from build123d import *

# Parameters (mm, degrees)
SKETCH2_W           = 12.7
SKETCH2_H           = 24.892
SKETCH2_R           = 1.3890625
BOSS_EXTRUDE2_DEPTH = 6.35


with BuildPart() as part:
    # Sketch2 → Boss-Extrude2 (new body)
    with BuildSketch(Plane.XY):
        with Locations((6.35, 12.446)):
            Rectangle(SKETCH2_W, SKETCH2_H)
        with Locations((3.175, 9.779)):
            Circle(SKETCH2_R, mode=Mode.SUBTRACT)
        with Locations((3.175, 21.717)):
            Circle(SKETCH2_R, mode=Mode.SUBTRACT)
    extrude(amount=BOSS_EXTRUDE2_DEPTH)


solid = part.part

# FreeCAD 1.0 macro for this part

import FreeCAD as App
import Part
import Sketcher
from FreeCAD import Vector
Q = App.Units.Quantity

doc = App.newDocument("Part")
body = doc.addObject("PartDesign::Body", "Body")

# Sketch on XY plane
sketch1 = body.newObject("Sketcher::SketchObject", "Sketch")
sketch1.AttachmentSupport = (doc.getObject("XY_Plane"), [""])
sketch1.MapMode = "FlatFace"
sketch1.addGeometry([
    Part.LineSegment(Vector(0, 24.9, 0), Vector(0, 0, 0)),  # 0
    Part.LineSegment(Vector(0, 0, 0), Vector(12.7, 0, 0)),  # 1
    Part.LineSegment(Vector(12.7, 0, 0), Vector(12.7, 24.9, 0)),  # 2
    Part.LineSegment(Vector(12.7, 24.9, 0), Vector(0, 24.9, 0)),  # 3
    Part.Circle(Vector(3.2, 9.8, 0), Vector(0, 0, 1), 1.4),  # 4
    Part.Circle(Vector(3.2, 21.7, 0), Vector(0, 0, 1), 1.4),  # 5
], False)
sketch1.addConstraint([
    Sketcher.Constraint("Coincident", 0, 2, 1, 1),
    Sketcher.Constraint("Coincident", 1, 2, 2, 1),
    Sketcher.Constraint("Coincident", 2, 2, 3, 1),
    Sketcher.Constraint("Coincident", 3, 2, 0, 1),
    Sketcher.Constraint("Vertical", 0),
    Sketcher.Constraint("Horizontal", 1),
    Sketcher.Constraint("Vertical", 2),
    Sketcher.Constraint("Horizontal", 3),
    Sketcher.Constraint("Coincident", 0, 2, -1, 1),
    Sketcher.Constraint("Equal", 4, 5),
    Sketcher.Constraint("Vertical", 4, 3, 5, 3),
    Sketcher.Constraint("Diameter", 4, Q("0.109375 in")),
    Sketcher.Constraint("DistanceX", 1, 1, 1, 2, Q("0.5 in")),
    Sketcher.Constraint("DistanceY", 0, 2, 0, 1, Q("0.98 in")),
    Sketcher.Constraint("DistanceY", 4, 3, 5, 3, Q("0.47 in")),
    Sketcher.Constraint("DistanceX", -1, 1, 4, 3, Q("0.125 in")),
    Sketcher.Constraint("DistanceY", -1, 1, 4, 3, Q("0.385 in")),
])
pad1 = body.newObject("PartDesign::Pad", "Pad")
pad1.Profile = sketch1
pad1.Length = Q("0.25 in")

doc.recompute()
